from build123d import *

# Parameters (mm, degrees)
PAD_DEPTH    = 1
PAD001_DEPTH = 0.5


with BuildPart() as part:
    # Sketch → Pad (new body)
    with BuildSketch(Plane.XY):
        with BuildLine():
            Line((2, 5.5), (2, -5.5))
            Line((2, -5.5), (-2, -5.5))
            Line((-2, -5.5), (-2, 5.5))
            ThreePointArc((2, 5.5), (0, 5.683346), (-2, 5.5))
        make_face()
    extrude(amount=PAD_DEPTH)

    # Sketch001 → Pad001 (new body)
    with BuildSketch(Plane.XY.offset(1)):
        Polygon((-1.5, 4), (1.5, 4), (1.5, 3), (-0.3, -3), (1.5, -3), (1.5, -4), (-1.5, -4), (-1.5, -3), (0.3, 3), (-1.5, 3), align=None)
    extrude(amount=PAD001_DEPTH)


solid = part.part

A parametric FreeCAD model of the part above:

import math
import FreeCAD as App
import Part
import Sketcher
Q = App.Units.Quantity


def add_polygon(sketch, points):
    """Adds a closed chain of lines whose ends are joined by coincident constraints."""
    first, n = sketch.GeometryCount, len(points)
    for a, b in zip(points, points[1:] + points[:1]):
        sketch.addGeometry(Part.LineSegment(App.Vector(*a, 0), App.Vector(*b, 0)), False)
    for i in range(n):
        sketch.addConstraint(Sketcher.Constraint("Coincident", first + i, 2, first + (i + 1) % n, 1))

doc = App.newDocument("Part")
params = doc.addObject("Spreadsheet::Sheet", "Params")
for row, (alias, value) in enumerate([
    ("sketch1_width", "4 mm"),
    ("sketch1_height", "11 mm"),
    ("pad1_length", "1 mm"),
    ("sketch2_width", "3 mm"),
    ("sketch2_height", "1 mm"),
    ("sketch2_width2", "1.8 mm"),
    ("pad2_length", "0.5 mm"),
], start=1):
    params.set(f"A{row}", alias)
    params.set(f"B{row}", "=" + value)
    params.setAlias(f"B{row}", alias)

body = doc.addObject("PartDesign::Body", "Body")

# Sketch on XY plane
sketch1 = body.newObject("Sketcher::SketchObject", "Sketch")
sketch1.AttachmentSupport = (doc.getObject("XY_Plane"), [""])
sketch1.MapMode = "FlatFace"
sketch1.addGeometry(Part.LineSegment(App.Vector(2, -5.5, 0), App.Vector(2, 5.5, 0)), False)
sketch1.addGeometry(Part.ArcOfCircle(Part.Circle(App.Vector(0, -5.3, 0), App.Vector(0, 0, 1), 11), math.radians(80), math.radians(100)), False)
sketch1.addGeometry(Part.LineSegment(App.Vector(-2, 5.5, 0), App.Vector(-2, -5.5, 0)), False)
sketch1.addGeometry(Part.LineSegment(App.Vector(-2, -5.5, 0), App.Vector(2, -5.5, 0)), False)
sketch1.addConstraint(Sketcher.Constraint("Coincident", 0, 2, 1, 1))
sketch1.addConstraint(Sketcher.Constraint("Coincident", 1, 2, 2, 1))
sketch1.addConstraint(Sketcher.Constraint("Coincident", 2, 2, 3, 1))
sketch1.addConstraint(Sketcher.Constraint("Coincident", 3, 2, 0, 1))
sketch1.addConstraint(Sketcher.Constraint("Vertical", 0))
sketch1.addConstraint(Sketcher.Constraint("Vertical", 2))
sketch1.addConstraint(Sketcher.Constraint("Horizontal", 3))
sketch1.addConstraint(Sketcher.Constraint("Symmetric", 0, 2, 2, 2, -1, 1))
sketch1.addConstraint(Sketcher.Constraint("PointOnObject", 1, 3, -2))
sketch1.addConstraint(Sketcher.Constraint("DistanceX", 3, 1, 3, 2, Q("4 mm")))
sketch1.addConstraint(Sketcher.Constraint("DistanceY", 0, 1, 0, 2, Q("11 mm")))
sketch1.addConstraint(Sketcher.Constraint("Radius", 1, Q("11.00001 mm")))
sketch1.setExpression("Constraints[9]", "Params.sketch1_width")
sketch1.setExpression("Constraints[10]", "Params.sketch1_height")
pad1 = body.newObject("PartDesign::Pad", "Pad")
pad1.Profile = sketch1
pad1.setExpression("Length", "Params.pad1_length")

# Sketch on XY plane
sketch2 = body.newObject("Sketcher::SketchObject", "Sketch001")
sketch2.AttachmentSupport = (doc.getObject("XY_Plane"), [""])
sketch2.MapMode = "FlatFace"
sketch2.AttachmentOffset = App.Placement(App.Vector(0, 0, 1), App.Rotation())
add_polygon(sketch2, [(1.5, 4), (-1.5, 4), (-1.5, 3), (0.3, 3), (-1.5, -3), (-1.5, -4), (1.5, -4), (1.5, -3), (-0.3, -3), (1.5, 3)])  # lines 0-9
sketch2.addConstraint(Sketcher.Constraint("Horizontal", 0))
sketch2.addConstraint(Sketcher.Constraint("Vertical", 1))
sketch2.addConstraint(Sketcher.Constraint("Horizontal", 2))
sketch2.addConstraint(Sketcher.Constraint("Vertical", 4))
sketch2.addConstraint(Sketcher.Constraint("Horizontal", 5))
sketch2.addConstraint(Sketcher.Constraint("Vertical", 6))
sketch2.addConstraint(Sketcher.Constraint("Horizontal", 7))
sketch2.addConstraint(Sketcher.Constraint("Vertical", 9))
sketch2.addConstraint(Sketcher.Constraint("Symmetric", 0, 2, 5, 2, -1, 1))
sketch2.addConstraint(Sketcher.Constraint("Symmetric", 2, 2, 7, 2, -1, 1))
sketch2.addConstraint(Sketcher.Constraint("Symmetric", 3, 2, 8, 2, -1, 1))
sketch2.addConstraint(Sketcher.Constraint("Symmetric", 3, 2, 6, 2, -2))
sketch2.addConstraint(Sketcher.Constraint("DistanceX", 0, 2, 0, 1, Q("3 mm")))
sketch2.addConstraint(Sketcher.Constraint("DistanceY", 1, 2, 1, 1, Q("1 mm")))
sketch2.addConstraint(Sketcher.Constraint("DistanceX", 2, 1, 2, 2, Q("1.8 mm")))
sketch2.addConstraint(Sketcher.Constraint("DistanceY", -1, 1, 0, 2, Q("4 mm")))
sketch2.setExpression("Constraints[22]", "Params.sketch2_width")
sketch2.setExpression("Constraints[23]", "Params.sketch2_height")
sketch2.setExpression("Constraints[24]", "Params.sketch2_width2")
pad2 = body.newObject("PartDesign::Pad", "Pad001")
pad2.Profile = sketch2
pad2.setExpression("Length", "Params.pad2_length")

doc.recompute()
